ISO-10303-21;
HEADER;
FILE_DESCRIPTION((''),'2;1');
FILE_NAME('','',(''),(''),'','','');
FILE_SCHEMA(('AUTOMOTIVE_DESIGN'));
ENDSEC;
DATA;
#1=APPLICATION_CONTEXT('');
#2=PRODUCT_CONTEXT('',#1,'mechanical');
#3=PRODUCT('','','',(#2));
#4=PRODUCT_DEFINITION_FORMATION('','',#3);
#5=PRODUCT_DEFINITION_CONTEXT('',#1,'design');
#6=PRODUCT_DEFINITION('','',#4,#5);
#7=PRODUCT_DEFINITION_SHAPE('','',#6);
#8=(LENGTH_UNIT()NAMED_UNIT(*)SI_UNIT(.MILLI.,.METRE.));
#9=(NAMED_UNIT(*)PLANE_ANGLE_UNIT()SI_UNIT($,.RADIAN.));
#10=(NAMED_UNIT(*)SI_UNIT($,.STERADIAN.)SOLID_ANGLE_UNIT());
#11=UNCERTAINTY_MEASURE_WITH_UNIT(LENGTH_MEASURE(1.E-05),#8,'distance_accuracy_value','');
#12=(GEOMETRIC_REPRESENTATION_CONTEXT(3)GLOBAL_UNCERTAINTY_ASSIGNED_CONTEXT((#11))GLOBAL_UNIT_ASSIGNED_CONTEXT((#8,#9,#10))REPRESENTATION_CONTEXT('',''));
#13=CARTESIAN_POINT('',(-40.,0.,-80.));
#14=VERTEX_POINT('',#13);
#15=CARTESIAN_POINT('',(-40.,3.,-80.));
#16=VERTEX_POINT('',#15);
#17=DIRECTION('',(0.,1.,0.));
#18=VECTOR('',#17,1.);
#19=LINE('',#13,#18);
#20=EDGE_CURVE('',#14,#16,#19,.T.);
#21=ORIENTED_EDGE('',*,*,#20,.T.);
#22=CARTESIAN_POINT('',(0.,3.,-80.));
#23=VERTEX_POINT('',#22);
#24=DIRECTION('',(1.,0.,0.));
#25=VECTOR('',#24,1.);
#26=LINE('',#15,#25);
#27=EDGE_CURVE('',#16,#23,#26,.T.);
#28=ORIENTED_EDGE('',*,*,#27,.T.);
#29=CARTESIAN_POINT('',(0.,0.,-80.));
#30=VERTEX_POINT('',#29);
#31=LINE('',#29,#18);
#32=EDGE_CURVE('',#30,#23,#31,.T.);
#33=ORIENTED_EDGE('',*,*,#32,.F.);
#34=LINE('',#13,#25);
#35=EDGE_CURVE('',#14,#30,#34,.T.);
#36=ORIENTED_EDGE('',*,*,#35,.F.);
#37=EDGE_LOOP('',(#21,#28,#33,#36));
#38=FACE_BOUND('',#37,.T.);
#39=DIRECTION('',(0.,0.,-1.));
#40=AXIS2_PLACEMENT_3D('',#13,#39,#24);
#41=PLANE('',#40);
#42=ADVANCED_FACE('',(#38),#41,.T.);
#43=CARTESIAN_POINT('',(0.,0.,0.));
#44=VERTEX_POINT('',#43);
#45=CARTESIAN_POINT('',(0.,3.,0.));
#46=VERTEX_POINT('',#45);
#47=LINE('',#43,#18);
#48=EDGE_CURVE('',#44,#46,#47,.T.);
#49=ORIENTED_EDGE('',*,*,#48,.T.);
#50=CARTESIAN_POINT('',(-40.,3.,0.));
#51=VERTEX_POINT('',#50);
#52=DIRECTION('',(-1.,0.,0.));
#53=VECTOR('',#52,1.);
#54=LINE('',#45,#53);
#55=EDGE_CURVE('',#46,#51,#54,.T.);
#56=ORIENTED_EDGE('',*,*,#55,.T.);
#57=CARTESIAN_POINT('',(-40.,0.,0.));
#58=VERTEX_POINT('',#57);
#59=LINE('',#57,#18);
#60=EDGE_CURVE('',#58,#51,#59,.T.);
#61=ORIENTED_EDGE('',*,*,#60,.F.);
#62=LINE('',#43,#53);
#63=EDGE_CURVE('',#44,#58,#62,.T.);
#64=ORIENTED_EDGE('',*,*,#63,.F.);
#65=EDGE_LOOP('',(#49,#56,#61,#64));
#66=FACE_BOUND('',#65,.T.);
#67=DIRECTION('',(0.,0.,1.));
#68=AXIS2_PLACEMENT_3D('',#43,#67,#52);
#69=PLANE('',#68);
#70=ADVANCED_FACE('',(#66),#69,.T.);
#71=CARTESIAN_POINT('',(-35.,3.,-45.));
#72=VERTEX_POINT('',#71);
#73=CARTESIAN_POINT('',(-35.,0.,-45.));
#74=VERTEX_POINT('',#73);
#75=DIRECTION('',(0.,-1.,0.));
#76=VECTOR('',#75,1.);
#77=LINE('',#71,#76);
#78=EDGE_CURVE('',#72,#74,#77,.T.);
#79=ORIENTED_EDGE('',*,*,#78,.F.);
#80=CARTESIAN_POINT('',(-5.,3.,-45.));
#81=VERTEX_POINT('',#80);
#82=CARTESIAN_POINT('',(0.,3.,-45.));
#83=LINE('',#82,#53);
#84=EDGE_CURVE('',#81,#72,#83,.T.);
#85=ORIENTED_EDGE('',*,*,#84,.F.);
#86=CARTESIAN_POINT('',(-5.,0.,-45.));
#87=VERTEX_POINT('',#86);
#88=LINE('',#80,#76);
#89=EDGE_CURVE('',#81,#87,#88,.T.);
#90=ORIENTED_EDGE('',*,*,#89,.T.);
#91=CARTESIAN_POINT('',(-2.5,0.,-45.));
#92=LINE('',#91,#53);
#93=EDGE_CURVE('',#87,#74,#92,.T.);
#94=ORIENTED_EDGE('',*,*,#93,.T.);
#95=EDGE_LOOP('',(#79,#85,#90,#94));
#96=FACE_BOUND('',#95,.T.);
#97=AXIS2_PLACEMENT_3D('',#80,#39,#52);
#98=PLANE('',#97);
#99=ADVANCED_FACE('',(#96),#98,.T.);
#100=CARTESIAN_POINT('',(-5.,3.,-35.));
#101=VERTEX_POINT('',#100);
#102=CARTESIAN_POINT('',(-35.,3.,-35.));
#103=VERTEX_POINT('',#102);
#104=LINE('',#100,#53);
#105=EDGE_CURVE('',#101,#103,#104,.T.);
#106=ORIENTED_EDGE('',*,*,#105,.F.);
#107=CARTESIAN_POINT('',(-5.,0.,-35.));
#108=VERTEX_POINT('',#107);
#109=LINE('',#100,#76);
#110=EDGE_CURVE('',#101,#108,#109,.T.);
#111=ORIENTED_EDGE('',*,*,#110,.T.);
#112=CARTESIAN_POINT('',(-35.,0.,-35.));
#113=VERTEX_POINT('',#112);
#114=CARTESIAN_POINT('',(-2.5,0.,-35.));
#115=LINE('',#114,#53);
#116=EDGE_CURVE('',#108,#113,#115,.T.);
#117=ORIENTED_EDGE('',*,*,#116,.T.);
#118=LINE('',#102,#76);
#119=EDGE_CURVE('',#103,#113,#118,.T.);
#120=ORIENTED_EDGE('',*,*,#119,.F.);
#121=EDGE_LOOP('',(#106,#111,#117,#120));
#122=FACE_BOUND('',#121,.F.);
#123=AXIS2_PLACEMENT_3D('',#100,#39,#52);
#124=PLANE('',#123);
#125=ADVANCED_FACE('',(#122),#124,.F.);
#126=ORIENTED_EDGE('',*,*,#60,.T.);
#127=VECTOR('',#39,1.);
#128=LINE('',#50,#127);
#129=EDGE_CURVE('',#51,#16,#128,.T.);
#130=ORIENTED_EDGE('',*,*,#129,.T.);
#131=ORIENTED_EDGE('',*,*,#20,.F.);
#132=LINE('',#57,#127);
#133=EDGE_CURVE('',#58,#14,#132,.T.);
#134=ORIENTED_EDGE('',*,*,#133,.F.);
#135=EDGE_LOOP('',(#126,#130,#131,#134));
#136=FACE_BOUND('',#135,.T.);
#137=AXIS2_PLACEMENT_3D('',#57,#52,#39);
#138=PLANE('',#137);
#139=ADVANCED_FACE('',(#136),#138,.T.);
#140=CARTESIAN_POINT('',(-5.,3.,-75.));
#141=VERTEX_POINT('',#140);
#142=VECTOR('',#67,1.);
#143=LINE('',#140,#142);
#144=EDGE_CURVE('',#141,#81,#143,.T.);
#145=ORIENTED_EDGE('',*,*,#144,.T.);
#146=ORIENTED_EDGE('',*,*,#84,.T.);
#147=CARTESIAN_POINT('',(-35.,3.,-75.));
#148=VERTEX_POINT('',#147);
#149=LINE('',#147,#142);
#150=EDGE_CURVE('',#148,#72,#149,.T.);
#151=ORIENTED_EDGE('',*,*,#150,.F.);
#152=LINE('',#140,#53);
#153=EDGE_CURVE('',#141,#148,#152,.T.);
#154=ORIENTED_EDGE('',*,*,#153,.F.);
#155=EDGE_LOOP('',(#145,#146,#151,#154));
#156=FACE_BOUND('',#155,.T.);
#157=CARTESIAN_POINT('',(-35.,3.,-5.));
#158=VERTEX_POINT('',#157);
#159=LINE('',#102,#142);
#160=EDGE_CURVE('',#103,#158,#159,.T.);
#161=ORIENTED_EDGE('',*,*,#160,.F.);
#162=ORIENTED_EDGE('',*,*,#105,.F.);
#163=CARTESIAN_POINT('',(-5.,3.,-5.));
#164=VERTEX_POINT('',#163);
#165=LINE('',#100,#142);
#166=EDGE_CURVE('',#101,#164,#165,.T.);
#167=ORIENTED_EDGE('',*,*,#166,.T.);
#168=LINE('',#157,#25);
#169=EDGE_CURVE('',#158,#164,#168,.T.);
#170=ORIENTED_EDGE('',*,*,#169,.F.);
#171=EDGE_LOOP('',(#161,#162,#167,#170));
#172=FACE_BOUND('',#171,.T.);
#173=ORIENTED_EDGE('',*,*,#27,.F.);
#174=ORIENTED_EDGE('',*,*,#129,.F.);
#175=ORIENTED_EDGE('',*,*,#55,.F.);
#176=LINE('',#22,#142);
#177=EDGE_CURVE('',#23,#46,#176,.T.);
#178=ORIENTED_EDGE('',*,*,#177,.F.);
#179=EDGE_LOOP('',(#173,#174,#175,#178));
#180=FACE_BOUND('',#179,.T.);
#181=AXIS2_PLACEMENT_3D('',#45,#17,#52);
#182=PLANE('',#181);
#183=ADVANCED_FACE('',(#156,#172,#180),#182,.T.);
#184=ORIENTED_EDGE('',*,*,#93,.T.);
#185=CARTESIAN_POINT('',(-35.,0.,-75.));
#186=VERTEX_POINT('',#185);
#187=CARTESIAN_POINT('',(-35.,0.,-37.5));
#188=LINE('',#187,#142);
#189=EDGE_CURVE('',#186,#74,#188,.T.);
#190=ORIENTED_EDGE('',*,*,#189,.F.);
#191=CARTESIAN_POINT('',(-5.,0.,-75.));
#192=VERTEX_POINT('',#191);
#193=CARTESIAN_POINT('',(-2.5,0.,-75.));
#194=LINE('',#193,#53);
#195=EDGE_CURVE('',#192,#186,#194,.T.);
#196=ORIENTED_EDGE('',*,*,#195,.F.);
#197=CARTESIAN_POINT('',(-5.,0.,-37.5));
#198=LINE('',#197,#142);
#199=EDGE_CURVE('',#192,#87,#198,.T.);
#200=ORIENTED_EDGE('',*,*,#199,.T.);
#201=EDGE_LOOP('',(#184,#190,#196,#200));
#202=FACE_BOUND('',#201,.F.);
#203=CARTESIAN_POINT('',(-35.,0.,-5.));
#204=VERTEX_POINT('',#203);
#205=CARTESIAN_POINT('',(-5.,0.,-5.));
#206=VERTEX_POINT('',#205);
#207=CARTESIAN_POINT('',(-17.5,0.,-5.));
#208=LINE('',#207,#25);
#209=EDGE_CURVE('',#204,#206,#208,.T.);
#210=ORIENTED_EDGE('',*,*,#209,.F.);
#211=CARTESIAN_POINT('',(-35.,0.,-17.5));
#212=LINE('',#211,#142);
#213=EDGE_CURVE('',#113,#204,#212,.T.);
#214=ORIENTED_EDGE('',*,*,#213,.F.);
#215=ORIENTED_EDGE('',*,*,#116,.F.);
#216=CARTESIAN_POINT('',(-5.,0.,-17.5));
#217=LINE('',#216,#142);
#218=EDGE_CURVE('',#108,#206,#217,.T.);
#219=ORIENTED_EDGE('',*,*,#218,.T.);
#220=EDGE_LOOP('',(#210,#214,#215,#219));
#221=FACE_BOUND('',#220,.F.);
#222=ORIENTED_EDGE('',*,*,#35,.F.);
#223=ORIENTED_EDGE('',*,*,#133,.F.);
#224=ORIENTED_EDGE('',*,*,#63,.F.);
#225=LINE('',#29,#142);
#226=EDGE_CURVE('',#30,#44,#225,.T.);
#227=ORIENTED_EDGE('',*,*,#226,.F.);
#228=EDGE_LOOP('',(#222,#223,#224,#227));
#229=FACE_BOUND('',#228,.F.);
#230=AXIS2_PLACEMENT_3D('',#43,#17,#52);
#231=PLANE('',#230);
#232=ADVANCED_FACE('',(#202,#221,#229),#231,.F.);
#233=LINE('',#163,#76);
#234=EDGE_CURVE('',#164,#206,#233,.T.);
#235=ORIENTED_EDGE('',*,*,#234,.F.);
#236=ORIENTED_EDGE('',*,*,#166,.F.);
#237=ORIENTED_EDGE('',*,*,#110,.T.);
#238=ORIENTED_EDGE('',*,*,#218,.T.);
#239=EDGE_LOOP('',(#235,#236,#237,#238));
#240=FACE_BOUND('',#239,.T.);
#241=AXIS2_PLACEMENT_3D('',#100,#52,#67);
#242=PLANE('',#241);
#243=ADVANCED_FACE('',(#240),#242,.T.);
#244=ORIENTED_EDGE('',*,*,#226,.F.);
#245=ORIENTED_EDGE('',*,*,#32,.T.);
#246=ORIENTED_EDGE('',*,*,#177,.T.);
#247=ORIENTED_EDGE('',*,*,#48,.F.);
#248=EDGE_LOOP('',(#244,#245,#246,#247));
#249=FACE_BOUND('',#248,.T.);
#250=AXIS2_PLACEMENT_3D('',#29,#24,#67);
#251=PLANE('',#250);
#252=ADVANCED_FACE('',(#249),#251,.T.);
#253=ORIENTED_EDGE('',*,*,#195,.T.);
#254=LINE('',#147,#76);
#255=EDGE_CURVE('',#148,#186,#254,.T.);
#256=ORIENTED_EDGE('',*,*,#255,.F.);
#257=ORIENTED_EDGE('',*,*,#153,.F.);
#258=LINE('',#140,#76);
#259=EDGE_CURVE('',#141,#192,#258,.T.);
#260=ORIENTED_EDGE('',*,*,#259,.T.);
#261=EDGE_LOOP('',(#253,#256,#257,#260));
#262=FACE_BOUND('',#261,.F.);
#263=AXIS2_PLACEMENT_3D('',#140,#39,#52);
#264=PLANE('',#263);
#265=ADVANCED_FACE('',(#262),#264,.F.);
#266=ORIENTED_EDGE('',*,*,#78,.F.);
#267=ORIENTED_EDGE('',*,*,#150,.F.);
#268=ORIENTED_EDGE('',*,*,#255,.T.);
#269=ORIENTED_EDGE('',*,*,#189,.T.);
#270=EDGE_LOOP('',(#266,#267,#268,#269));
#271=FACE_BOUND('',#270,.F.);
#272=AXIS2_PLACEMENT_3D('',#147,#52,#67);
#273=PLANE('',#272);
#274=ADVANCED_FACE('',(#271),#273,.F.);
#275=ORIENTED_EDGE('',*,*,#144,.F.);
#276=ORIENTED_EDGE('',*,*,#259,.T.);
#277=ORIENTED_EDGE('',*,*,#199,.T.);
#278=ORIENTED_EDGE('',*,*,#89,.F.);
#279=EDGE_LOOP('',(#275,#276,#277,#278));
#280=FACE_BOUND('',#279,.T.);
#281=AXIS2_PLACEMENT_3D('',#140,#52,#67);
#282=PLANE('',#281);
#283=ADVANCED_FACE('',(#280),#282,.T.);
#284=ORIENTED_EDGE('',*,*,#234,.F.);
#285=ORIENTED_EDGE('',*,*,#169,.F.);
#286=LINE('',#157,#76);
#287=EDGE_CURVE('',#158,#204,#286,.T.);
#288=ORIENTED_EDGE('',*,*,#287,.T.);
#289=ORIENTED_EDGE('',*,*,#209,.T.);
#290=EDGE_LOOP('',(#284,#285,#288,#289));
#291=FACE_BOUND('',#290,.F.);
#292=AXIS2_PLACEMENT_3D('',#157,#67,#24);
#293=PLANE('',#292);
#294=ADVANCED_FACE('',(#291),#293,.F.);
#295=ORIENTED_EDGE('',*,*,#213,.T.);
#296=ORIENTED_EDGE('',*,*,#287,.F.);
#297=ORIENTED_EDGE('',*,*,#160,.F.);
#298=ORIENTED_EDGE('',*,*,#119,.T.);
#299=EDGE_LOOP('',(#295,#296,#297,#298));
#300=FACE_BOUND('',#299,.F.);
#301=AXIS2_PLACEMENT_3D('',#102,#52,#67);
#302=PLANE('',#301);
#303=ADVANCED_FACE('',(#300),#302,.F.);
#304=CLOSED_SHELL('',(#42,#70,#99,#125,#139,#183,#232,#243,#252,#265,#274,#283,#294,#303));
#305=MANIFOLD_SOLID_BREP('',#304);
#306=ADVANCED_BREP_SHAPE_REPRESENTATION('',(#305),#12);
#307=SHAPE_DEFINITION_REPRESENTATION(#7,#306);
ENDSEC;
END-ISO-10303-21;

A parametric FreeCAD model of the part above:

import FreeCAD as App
import Part
import Sketcher
from FreeCAD import Vector

doc = App.newDocument("Part")
body = doc.addObject("PartDesign::Body", "Body")

# Sketch on XZ plane
sketch1 = body.newObject("Sketcher::SketchObject", "Sketch")
sketch1.AttachmentSupport = (doc.getObject("XZ_Plane"), [""])
sketch1.MapMode = "FlatFace"
sketch1.addGeometry(Part.LineSegment(Vector(-40, 0, 0), Vector(0, 0, 0)), False)
sketch1.addGeometry(Part.LineSegment(Vector(0, 0, 0), Vector(0, -80, 0)), False)
sketch1.addGeometry(Part.LineSegment(Vector(0, -80, 0), Vector(-40, -80, 0)), False)
sketch1.addGeometry(Part.LineSegment(Vector(-40, -80, 0), Vector(-40, 0, 0)), False)
sketch1.addConstraint(Sketcher.Constraint("Coincident", 0, 2, 1, 1))
sketch1.addConstraint(Sketcher.Constraint("Coincident", 1, 2, 2, 1))
sketch1.addConstraint(Sketcher.Constraint("Coincident", 2, 2, 3, 1))
sketch1.addConstraint(Sketcher.Constraint("Coincident", 3, 2, 0, 1))
sketch1.addConstraint(Sketcher.Constraint("Horizontal", 0))
sketch1.addConstraint(Sketcher.Constraint("Vertical", 1))
sketch1.addConstraint(Sketcher.Constraint("Horizontal", 2))
sketch1.addConstraint(Sketcher.Constraint("Vertical", 3))
sketch1.addConstraint(Sketcher.Constraint("Coincident", 0, 2, -1, 1))
sketch1.addConstraint(Sketcher.Constraint("DistanceX", 0, 1, 0, 2, 40.0))
sketch1.addConstraint(Sketcher.Constraint("DistanceY", 1, 2, 1, 1, 80.0))
pad1 = body.newObject("PartDesign::Pad", "Pad")
pad1.Profile = sketch1
pad1.Length = 3
pad1.Reversed = True

# Sketch on XZ plane
sketch2 = body.newObject("Sketcher::SketchObject", "Sketch001")
sketch2.AttachmentSupport = (doc.getObject("XZ_Plane"), [""])
sketch2.MapMode = "FlatFace"
sketch2.AttachmentOffset = App.Placement(Vector(0, 0, -3), App.Rotation())
sketch2.addGeometry(Part.LineSegment(Vector(-35, -45, 0), Vector(-5, -45, 0)), False)
sketch2.addGeometry(Part.LineSegment(Vector(-5, -45, 0), Vector(-5, -75, 0)), False)
sketch2.addGeometry(Part.LineSegment(Vector(-5, -75, 0), Vector(-35, -75, 0)), False)
sketch2.addGeometry(Part.LineSegment(Vector(-35, -75, 0), Vector(-35, -45, 0)), False)
sketch2.addGeometry(Part.LineSegment(Vector(-35, -35, 0), Vector(-35, -5, 0)), False)
sketch2.addGeometry(Part.LineSegment(Vector(-35, -5, 0), Vector(-5, -5, 0)), False)
sketch2.addGeometry(Part.LineSegment(Vector(-5, -5, 0), Vector(-5, -35, 0)), False)
sketch2.addGeometry(Part.LineSegment(Vector(-5, -35, 0), Vector(-35, -35, 0)), False)
sketch2.addConstraint(Sketcher.Constraint("Coincident", 0, 2, 1, 1))
sketch2.addConstraint(Sketcher.Constraint("Coincident", 1, 2, 2, 1))
sketch2.addConstraint(Sketcher.Constraint("Coincident", 2, 2, 3, 1))
sketch2.addConstraint(Sketcher.Constraint("Coincident", 3, 2, 0, 1))
sketch2.addConstraint(Sketcher.Constraint("Coincident", 4, 2, 5, 1))
sketch2.addConstraint(Sketcher.Constraint("Coincident", 5, 2, 6, 1))
sketch2.addConstraint(Sketcher.Constraint("Coincident", 6, 2, 7, 1))
sketch2.addConstraint(Sketcher.Constraint("Coincident", 7, 2, 4, 1))
sketch2.addConstraint(Sketcher.Constraint("Horizontal", 0))
sketch2.addConstraint(Sketcher.Constraint("Vertical", 1))
sketch2.addConstraint(Sketcher.Constraint("Horizontal", 2))
sketch2.addConstraint(Sketcher.Constraint("Vertical", 3))
sketch2.addConstraint(Sketcher.Constraint("Vertical", 4))
sketch2.addConstraint(Sketcher.Constraint("Horizontal", 5))
sketch2.addConstraint(Sketcher.Constraint("Vertical", 6))
sketch2.addConstraint(Sketcher.Constraint("Horizontal", 7))
sketch2.addConstraint(Sketcher.Constraint("Vertical", 3, 2, 4, 2))
sketch2.addConstraint(Sketcher.Constraint("Vertical", 1, 2, 5, 2))
sketch2.addConstraint(Sketcher.Constraint("Equal", 7, 1))
sketch2.addConstraint(Sketcher.Constraint("Equal", 3, 4))
sketch2.addConstraint(Sketcher.Constraint("DistanceX", 0, 1, 0, 2, 30.0))
sketch2.addConstraint(Sketcher.Constraint("DistanceX", 0, 2, -1, 1, 5.0))
sketch2.addConstraint(Sketcher.Constraint("DistanceY", 4, 2, -1, 1, 5.0))
sketch2.addConstraint(Sketcher.Constraint("DistanceY", 0, 2, 6, 2, 10.0))
pocket1 = body.newObject("PartDesign::Pocket", "Pocket")
pocket1.Profile = sketch2
pocket1.Type = "ThroughAll"
pocket1.Reversed = True

doc.recompute()
